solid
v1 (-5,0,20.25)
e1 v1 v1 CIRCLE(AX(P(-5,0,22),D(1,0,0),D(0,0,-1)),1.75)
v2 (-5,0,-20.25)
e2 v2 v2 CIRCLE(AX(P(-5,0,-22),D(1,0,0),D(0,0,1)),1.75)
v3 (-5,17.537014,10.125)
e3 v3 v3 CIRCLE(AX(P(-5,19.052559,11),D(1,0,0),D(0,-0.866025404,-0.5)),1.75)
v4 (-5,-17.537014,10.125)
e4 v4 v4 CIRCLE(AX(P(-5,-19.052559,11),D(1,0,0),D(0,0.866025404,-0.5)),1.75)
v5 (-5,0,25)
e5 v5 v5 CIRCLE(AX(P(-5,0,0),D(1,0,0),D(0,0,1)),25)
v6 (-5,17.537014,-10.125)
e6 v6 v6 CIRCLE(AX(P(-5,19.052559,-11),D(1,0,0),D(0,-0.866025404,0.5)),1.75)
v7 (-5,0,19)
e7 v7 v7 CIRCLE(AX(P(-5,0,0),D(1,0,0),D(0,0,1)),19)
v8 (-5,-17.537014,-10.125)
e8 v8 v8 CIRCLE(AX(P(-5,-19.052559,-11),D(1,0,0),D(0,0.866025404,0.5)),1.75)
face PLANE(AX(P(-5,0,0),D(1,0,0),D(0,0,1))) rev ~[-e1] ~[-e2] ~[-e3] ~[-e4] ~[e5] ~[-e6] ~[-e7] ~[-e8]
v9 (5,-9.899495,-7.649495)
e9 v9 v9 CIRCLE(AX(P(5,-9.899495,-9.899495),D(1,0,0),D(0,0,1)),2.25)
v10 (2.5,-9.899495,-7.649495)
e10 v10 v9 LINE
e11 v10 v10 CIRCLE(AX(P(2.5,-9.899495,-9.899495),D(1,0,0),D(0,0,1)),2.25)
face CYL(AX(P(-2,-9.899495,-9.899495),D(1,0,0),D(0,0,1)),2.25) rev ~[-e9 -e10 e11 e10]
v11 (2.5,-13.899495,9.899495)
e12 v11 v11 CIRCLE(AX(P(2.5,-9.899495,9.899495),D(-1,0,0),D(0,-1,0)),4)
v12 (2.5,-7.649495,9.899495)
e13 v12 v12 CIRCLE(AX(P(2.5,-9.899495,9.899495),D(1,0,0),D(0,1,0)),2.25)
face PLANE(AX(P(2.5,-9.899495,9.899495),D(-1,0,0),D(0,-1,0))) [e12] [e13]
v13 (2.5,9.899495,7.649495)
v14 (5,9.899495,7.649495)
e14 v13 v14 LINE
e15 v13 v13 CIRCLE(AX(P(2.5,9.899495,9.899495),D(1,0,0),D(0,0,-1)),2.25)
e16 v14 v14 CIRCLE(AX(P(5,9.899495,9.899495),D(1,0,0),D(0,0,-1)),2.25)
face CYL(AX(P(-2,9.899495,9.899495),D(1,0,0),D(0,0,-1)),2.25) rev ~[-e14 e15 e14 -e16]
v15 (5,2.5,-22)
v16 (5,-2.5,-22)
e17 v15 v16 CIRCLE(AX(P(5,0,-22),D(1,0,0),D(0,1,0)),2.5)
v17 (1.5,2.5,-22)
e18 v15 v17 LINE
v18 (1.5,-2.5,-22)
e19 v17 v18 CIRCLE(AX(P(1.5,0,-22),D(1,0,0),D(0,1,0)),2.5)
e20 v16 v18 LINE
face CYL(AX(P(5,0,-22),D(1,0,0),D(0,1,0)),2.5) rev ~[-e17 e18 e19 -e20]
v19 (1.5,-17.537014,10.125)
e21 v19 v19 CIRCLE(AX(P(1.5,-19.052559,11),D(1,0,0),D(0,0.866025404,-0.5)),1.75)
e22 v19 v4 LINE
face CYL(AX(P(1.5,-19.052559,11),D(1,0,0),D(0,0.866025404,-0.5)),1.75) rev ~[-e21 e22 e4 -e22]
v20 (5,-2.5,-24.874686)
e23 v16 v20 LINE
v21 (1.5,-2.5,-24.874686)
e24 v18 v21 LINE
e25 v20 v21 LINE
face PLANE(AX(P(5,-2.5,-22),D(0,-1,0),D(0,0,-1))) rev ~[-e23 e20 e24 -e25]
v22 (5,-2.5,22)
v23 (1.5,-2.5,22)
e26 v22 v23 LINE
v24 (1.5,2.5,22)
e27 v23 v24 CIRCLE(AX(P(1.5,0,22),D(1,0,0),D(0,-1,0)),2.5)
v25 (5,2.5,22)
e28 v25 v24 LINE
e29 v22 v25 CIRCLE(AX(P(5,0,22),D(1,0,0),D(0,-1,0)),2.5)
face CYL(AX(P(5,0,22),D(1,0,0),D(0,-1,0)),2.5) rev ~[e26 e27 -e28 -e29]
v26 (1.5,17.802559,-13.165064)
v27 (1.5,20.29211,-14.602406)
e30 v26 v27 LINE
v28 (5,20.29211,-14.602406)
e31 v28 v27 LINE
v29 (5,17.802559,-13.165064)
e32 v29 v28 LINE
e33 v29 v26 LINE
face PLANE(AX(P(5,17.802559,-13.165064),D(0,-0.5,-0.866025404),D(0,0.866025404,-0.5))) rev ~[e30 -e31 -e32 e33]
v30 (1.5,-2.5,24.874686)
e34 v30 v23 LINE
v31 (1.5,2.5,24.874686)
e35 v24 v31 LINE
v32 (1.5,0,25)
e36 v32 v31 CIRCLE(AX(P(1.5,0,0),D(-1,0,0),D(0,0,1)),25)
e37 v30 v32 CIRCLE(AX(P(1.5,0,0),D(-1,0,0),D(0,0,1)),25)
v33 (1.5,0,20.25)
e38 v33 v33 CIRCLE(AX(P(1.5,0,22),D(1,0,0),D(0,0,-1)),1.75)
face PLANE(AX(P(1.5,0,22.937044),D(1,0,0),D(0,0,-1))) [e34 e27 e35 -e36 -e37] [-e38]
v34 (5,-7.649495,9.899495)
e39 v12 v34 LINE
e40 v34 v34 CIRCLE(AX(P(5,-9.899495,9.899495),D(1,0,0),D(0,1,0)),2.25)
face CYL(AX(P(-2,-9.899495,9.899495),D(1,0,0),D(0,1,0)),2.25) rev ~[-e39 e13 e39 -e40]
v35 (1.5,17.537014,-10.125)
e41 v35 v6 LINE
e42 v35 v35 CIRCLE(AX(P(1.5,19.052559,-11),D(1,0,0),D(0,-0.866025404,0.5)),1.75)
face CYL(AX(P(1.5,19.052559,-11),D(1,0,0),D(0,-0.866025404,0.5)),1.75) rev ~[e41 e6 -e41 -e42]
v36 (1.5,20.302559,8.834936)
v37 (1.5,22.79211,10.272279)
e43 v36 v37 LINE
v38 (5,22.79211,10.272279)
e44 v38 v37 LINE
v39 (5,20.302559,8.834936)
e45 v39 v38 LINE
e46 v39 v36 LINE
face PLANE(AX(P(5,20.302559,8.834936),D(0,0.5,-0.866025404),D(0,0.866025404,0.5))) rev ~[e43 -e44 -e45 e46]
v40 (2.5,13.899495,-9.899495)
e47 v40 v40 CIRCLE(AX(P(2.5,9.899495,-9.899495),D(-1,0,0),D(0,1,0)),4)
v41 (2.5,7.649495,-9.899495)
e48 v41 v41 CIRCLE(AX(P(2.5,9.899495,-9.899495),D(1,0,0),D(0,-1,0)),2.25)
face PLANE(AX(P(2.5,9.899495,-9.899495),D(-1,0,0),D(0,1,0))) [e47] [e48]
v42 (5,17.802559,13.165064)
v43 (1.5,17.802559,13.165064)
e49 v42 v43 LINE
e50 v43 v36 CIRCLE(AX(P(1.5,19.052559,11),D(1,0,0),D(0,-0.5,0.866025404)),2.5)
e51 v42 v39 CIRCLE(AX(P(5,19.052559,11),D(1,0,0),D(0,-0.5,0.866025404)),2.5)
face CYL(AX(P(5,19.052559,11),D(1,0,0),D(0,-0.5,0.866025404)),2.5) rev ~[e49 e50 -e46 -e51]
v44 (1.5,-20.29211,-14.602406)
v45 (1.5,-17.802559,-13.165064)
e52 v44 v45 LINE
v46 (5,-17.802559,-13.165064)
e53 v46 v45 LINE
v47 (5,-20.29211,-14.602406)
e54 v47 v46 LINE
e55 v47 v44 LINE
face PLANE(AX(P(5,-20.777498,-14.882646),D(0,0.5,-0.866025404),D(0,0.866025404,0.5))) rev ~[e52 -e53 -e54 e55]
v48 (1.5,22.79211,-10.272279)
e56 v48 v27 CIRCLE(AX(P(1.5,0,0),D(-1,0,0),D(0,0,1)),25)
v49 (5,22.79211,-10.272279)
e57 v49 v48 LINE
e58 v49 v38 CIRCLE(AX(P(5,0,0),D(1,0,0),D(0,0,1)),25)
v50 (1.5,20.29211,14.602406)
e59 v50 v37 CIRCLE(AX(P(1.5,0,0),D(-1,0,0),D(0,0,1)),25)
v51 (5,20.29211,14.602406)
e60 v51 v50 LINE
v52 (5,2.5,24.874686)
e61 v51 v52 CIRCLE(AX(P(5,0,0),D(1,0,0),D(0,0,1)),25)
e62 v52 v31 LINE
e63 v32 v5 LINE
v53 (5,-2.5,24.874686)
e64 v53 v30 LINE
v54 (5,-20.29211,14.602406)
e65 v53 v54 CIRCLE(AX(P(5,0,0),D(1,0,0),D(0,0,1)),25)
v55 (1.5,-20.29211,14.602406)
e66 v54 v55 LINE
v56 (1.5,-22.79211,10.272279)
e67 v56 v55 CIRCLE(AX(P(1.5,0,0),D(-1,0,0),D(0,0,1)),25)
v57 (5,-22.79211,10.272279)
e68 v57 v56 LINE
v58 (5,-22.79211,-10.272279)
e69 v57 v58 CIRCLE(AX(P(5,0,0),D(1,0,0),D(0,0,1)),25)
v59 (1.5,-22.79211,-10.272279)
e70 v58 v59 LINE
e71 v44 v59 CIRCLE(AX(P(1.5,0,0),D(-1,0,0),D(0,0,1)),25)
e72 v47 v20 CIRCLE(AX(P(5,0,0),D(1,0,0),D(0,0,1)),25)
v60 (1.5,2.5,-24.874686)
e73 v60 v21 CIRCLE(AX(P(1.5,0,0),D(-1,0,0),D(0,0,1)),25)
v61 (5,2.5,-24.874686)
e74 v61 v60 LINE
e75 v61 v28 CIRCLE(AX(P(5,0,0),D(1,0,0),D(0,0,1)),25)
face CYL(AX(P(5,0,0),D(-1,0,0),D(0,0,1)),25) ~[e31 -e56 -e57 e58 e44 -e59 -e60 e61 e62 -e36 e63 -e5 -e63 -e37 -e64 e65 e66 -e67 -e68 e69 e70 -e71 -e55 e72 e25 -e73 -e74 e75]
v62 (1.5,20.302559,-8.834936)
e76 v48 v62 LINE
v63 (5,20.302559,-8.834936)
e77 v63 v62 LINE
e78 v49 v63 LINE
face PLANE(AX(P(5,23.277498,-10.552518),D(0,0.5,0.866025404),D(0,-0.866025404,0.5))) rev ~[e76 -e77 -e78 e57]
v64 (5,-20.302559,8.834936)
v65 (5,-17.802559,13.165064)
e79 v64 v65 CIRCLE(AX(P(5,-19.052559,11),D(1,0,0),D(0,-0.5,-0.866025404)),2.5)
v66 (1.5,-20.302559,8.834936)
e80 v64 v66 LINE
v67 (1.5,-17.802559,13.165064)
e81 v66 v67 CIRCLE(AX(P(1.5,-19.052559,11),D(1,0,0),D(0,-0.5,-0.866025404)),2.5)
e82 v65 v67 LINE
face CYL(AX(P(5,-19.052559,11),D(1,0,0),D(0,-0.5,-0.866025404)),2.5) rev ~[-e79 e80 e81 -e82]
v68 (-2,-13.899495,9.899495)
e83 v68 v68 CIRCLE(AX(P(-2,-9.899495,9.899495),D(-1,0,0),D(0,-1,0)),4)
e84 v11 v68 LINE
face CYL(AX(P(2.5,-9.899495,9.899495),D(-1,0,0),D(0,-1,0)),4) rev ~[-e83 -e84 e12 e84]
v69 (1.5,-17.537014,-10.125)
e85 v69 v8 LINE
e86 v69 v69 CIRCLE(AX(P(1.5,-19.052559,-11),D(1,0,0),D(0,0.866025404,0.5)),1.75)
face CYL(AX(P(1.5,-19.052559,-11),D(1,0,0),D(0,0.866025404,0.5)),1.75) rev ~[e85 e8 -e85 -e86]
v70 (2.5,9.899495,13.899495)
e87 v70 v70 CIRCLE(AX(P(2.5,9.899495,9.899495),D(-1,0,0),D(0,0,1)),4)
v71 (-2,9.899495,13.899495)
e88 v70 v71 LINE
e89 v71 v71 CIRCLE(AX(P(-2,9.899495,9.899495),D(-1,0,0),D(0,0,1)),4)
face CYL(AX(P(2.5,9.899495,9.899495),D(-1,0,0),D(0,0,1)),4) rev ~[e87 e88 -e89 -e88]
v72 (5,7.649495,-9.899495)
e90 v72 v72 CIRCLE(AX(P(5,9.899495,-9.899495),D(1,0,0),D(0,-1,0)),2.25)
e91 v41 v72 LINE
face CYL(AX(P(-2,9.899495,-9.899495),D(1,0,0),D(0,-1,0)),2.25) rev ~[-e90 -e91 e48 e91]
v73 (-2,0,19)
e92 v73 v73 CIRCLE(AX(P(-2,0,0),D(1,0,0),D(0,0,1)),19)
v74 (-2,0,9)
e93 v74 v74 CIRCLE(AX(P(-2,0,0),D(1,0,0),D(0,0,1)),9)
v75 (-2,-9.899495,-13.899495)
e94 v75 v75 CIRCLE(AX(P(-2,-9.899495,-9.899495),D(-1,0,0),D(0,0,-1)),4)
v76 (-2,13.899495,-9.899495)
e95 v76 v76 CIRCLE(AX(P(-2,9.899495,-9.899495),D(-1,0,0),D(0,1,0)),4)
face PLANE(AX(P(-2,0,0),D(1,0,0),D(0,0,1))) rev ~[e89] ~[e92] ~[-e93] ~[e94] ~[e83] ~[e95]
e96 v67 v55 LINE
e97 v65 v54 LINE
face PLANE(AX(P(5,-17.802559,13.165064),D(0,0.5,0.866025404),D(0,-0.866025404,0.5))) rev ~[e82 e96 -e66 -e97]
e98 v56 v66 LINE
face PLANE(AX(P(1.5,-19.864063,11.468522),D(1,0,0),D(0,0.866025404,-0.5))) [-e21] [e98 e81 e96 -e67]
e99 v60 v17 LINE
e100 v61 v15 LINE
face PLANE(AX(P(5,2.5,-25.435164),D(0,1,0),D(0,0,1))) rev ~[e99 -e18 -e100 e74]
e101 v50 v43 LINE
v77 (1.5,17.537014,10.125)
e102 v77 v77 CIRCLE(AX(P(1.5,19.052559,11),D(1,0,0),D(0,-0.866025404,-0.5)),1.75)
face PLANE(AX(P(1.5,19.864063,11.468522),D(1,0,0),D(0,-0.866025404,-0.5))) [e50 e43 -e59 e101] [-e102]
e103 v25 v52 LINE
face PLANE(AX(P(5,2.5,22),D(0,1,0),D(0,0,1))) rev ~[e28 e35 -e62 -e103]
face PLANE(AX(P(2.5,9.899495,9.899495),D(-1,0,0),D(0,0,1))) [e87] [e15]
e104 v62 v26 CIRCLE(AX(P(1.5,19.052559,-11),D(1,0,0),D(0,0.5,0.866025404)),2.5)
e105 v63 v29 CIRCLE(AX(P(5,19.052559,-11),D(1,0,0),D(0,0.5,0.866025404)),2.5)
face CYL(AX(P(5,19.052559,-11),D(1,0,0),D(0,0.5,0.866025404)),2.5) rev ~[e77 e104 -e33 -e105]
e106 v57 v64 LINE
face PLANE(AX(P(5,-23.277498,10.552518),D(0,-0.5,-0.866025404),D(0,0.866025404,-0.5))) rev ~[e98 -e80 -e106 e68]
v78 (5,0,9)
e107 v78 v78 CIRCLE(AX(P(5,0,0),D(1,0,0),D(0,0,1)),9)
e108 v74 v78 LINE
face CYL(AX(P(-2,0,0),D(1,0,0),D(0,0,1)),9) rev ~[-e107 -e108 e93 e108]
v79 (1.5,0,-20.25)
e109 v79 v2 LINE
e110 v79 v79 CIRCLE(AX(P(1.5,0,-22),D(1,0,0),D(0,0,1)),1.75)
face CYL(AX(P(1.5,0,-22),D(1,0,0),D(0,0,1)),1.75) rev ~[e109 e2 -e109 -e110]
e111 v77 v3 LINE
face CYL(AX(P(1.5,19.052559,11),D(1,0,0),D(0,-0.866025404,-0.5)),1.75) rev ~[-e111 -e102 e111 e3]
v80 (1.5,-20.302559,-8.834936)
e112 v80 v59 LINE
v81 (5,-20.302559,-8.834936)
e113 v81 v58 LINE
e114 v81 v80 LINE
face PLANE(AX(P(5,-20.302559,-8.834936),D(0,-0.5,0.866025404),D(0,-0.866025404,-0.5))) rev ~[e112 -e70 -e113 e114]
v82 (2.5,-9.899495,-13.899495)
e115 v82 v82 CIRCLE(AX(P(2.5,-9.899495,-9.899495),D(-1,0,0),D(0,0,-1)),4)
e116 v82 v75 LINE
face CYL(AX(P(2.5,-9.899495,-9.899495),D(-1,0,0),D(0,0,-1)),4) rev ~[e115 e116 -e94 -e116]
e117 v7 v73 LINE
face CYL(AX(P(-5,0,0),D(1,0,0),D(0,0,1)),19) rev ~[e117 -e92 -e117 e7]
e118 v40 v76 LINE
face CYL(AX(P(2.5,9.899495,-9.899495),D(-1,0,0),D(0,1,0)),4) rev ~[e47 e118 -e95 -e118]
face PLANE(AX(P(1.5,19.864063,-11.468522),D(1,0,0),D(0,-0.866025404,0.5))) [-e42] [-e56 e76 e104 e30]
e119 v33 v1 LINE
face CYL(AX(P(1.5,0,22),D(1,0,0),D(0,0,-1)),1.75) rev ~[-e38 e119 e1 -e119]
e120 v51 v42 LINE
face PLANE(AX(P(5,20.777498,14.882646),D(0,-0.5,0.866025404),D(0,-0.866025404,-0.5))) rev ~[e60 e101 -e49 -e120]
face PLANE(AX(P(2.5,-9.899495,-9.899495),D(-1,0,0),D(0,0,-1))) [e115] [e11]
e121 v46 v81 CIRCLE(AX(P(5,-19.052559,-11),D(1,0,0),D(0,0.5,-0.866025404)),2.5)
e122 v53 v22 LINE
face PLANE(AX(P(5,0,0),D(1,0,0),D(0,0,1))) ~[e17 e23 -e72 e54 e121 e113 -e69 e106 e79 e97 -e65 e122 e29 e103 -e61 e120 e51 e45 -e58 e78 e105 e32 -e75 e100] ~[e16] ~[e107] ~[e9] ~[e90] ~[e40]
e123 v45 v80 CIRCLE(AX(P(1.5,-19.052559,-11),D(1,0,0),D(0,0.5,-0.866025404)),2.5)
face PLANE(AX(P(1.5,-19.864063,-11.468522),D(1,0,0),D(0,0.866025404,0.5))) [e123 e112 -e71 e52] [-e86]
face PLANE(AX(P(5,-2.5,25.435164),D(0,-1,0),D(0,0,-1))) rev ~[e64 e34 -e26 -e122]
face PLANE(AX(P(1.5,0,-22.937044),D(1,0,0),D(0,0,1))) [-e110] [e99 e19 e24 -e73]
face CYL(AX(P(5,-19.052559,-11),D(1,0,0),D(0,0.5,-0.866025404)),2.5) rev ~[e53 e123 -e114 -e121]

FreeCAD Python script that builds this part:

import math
import FreeCAD as App
import Part
import Sketcher
from FreeCAD import Vector
Q = App.Units.Quantity

doc = App.newDocument("Part")
body = doc.addObject("PartDesign::Body", "Body")

# Sketch on XY plane
sketch1 = body.newObject("Sketcher::SketchObject", "Sketch")
sketch1.AttachmentSupport = (doc.getObject("XY_Plane"), [""])
sketch1.MapMode = "FlatFace"
sketch1.addGeometry([
    Part.LineSegment(Vector(-5, 25, 0), Vector(-5, 19, 0)),  # 0
    Part.LineSegment(Vector(-5, 19, 0), Vector(-2, 19, 0)),  # 1
    Part.LineSegment(Vector(-2, 19, 0), Vector(-2, 9, 0)),  # 2
    Part.LineSegment(Vector(-2, 9, 0), Vector(5, 9, 0)),  # 3
    Part.LineSegment(Vector(5, 9, 0), Vector(5, 25, 0)),  # 4
    Part.LineSegment(Vector(5, 25, 0), Vector(-5, 25, 0)),  # 5
], False)
sketch1.addConstraint([
    Sketcher.Constraint("Coincident", 0, 2, 1, 1),
    Sketcher.Constraint("Coincident", 1, 2, 2, 1),
    Sketcher.Constraint("Coincident", 2, 2, 3, 1),
    Sketcher.Constraint("Coincident", 3, 2, 4, 1),
    Sketcher.Constraint("Coincident", 4, 2, 5, 1),
    Sketcher.Constraint("Coincident", 5, 2, 0, 1),
    Sketcher.Constraint("Vertical", 0),
    Sketcher.Constraint("Horizontal", 1),
    Sketcher.Constraint("Vertical", 2),
    Sketcher.Constraint("Horizontal", 3),
    Sketcher.Constraint("Vertical", 4),
    Sketcher.Constraint("Horizontal", 5),
    Sketcher.Constraint("Equal", 5, 2),
    Sketcher.Constraint("DistanceX", 1, 1, 1, 2, Q("3 mm")),
    Sketcher.Constraint("DistanceX", 3, 1, 3, 2, Q("7 mm")),
    Sketcher.Constraint("DistanceY", 0, 2, 0, 1, Q("6 mm")),
    Sketcher.Constraint("DistanceX", 0, 2, -1, 1, Q("5 mm")),
    Sketcher.Constraint("DistanceY", -1, 1, 0, 2, Q("19 mm")),
])
revolution = body.newObject("PartDesign::Revolution", "Revolution")
revolution.Profile = sketch1
revolution.ReferenceAxis = (sketch1, ["H_Axis"])
revolution.Angle = 360

# Sketch on YZ plane
sketch2 = body.newObject("Sketcher::SketchObject", "Sketch001")
sketch2.AttachmentSupport = (doc.getObject("YZ_Plane"), [""])
sketch2.MapMode = "FlatFace"
sketch2.AttachmentOffset = App.Placement(Vector(0, 0, 5), App.Rotation())
sketch2.addGeometry([
    Part.LineSegment(Vector(2.5, 22, 0), Vector(2.5, 25.4, 0)),
    Part.LineSegment(Vector(2.5, 25.4, 0), Vector(-2.5, 25.4, 0)),
    Part.LineSegment(Vector(-2.5, 25.4, 0), Vector(-2.5, 22, 0)),
    Part.ArcOfCircle(Part.Circle(Vector(0, 22, 0), Vector(0, 0, 1), 2.5), math.radians(180), math.radians(360)),
], False)
sketch2.addConstraint([
    Sketcher.Constraint("Coincident", 0, 2, 1, 1),
    Sketcher.Constraint("Coincident", 1, 2, 2, 1),
    Sketcher.Constraint("Tangent", 2, 2, 3, 1),
    Sketcher.Constraint("Tangent", 3, 2, 0, 1),
    Sketcher.Constraint("Vertical", 0),
    Sketcher.Constraint("Horizontal", 1),
    Sketcher.Constraint("Vertical", 2),
    Sketcher.Constraint("PointOnObject", 3, 3, -2),
    Sketcher.Constraint("Radius", 3, Q("2.5 mm")),
    Sketcher.Constraint("DistanceY", -1, 1, 3, 3, Q("22 mm")),
    Sketcher.Constraint("DistanceY", 0, 1, 0, 2, Q("3.435164 mm")),
])
pocket1 = body.newObject("PartDesign::Pocket", "Pocket")
pocket1.Profile = sketch2
pocket1.Length = 3.5
doc.recompute()

polarpattern = body.newObject("PartDesign::PolarPattern", "PolarPattern")
polarpattern.Originals = [pocket1]
polarpattern.Axis = (doc.getObject("X_Axis"), [""])
polarpattern.Angle = 360
polarpattern.Occurrences = 6
body.Tip = polarpattern

# Sketch on YZ plane
sketch3 = body.newObject("Sketcher::SketchObject", "Sketch002")
sketch3.AttachmentSupport = (doc.getObject("YZ_Plane"), [""])
sketch3.MapMode = "FlatFace"
sketch3.AttachmentOffset = App.Placement(Vector(0, 0, 1.5), App.Rotation())
sketch3.addGeometry(Part.Circle(Vector(0, 22, 0), Vector(0, 0, 1), 1.8), False)
sketch3.addConstraint([
    Sketcher.Constraint("PointOnObject", 0, 3, -2),
    Sketcher.Constraint("Diameter", 0, Q("3.5 mm")),
    Sketcher.Constraint("DistanceY", -1, 1, 0, 3, Q("22 mm")),
])
pocket2 = body.newObject("PartDesign::Pocket", "Pocket001")
pocket2.Profile = sketch3
pocket2.Type = "ThroughAll"
doc.recompute()

polarpattern2 = body.newObject("PartDesign::PolarPattern", "PolarPattern001")
polarpattern2.Originals = [pocket2]
polarpattern2.Axis = (doc.getObject("X_Axis"), [""])
polarpattern2.Angle = 360
polarpattern2.Occurrences = 6
body.Tip = polarpattern2

# Sketch on YZ plane
sketch4 = body.newObject("Sketcher::SketchObject", "Sketch003")
sketch4.AttachmentSupport = (doc.getObject("YZ_Plane"), [""])
sketch4.MapMode = "FlatFace"
sketch4.AttachmentOffset = App.Placement(Vector(0, 0, -2), App.Rotation())
sketch4.addGeometry(Part.Circle(Vector(9.9, 9.9, 0), Vector(0, 0, 1), 2.2), False)
sketch4.addConstraint([
    Sketcher.Constraint("Diameter", 0, Q("4.5 mm")),
    Sketcher.Constraint("DistanceX", -1, 1, 0, 3, Q("9.899495 mm")),
    Sketcher.Constraint("DistanceY", -1, 1, 0, 3, Q("9.899495 mm")),
])
doc.recompute()
hole = body.newObject("PartDesign::Hole", "Hole")
hole.Profile = sketch4
hole.ThreadType = "None"
hole.Diameter = 4.5
hole.DepthType = "ThroughAll"
hole.HoleCutType = "Counterbore"
hole.HoleCutDiameter = 8
hole.HoleCutDepth = 4.5
hole.Reversed = True
doc.recompute()

polarpattern3 = body.newObject("PartDesign::PolarPattern", "PolarPattern002")
polarpattern3.Originals = [hole]
polarpattern3.Axis = (doc.getObject("X_Axis"), [""])
polarpattern3.Angle = 360
polarpattern3.Occurrences = 4
body.Tip = polarpattern3

doc.recompute()
